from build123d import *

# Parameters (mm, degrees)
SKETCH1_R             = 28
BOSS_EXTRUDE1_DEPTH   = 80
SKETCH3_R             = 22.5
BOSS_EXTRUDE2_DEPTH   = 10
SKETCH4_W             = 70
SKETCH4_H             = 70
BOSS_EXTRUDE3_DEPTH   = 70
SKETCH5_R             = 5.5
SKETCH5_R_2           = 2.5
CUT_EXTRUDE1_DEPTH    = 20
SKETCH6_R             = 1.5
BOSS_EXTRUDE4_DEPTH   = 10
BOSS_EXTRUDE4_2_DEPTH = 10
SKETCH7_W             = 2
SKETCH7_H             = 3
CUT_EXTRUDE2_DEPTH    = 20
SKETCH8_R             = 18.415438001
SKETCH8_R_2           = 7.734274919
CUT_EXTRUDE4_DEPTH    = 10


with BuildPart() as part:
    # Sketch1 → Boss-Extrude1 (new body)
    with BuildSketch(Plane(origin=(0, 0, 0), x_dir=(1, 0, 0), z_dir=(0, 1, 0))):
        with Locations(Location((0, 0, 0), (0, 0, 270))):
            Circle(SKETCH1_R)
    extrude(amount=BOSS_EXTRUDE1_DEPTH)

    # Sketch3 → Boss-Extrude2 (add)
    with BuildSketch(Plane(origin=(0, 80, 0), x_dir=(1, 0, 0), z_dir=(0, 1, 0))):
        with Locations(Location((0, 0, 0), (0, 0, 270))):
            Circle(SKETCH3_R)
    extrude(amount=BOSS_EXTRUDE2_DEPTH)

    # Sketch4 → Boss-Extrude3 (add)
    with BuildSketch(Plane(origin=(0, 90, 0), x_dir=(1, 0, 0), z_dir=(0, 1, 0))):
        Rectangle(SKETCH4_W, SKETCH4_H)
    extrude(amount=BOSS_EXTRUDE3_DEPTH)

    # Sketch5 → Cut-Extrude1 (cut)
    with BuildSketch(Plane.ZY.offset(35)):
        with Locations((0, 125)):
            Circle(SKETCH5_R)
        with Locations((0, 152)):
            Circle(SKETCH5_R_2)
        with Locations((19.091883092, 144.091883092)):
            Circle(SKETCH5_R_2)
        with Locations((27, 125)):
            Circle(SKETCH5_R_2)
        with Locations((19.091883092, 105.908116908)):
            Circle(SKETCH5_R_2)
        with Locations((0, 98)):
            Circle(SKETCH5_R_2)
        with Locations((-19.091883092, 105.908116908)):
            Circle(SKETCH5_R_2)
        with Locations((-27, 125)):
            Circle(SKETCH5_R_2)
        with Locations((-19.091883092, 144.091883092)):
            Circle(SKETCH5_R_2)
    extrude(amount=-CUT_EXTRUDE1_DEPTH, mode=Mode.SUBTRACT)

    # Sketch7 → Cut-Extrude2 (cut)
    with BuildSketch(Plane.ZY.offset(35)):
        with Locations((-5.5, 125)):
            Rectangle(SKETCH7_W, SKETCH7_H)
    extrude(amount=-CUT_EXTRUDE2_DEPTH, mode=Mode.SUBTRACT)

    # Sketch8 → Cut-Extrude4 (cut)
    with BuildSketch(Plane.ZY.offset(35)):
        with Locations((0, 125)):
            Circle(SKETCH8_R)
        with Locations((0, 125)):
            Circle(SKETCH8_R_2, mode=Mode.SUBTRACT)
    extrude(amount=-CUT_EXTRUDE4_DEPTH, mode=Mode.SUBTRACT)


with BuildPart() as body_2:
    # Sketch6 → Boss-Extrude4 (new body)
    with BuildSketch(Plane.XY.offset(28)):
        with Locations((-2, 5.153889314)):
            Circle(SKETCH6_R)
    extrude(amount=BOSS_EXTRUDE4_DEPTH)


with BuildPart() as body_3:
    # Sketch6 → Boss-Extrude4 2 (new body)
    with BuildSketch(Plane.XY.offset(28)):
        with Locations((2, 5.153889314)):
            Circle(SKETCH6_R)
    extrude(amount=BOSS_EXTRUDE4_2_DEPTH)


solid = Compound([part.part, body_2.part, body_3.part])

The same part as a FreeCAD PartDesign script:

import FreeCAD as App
import Part
import Sketcher
from FreeCAD import Vector

doc = App.newDocument("Part")
body = doc.addObject("PartDesign::Body", "Body")

sketch1 = body.newObject("Sketcher::SketchObject", "Sketch")
sketch1.AttachmentSupport = (doc.getObject("XZ_Plane"), [""])
sketch1.MapMode = "FlatFace"
sketch1.addGeometry(Part.Circle(Vector(0, 0, 0), Vector(0, 0, 1), 28), False)
sketch1.addConstraint(Sketcher.Constraint("Coincident", 0, 3, -1, 1))
sketch1.addConstraint(Sketcher.Constraint("Diameter", 0, 56.0))
pad1 = body.newObject("PartDesign::Pad", "Pad")
pad1.Profile = sketch1
pad1.Length = 80
pad1.Reversed = True

sketch2 = body.newObject("Sketcher::SketchObject", "Sketch001")
sketch2.AttachmentSupport = (doc.getObject("XZ_Plane"), [""])
sketch2.MapMode = "FlatFace"
sketch2.AttachmentOffset = App.Placement(Vector(0, 0, -80), App.Rotation())
sketch2.addGeometry(Part.Circle(Vector(0, 0, 0), Vector(0, 0, 1), 22), False)
sketch2.addConstraint(Sketcher.Constraint("Coincident", 0, 3, -1, 1))
sketch2.addConstraint(Sketcher.Constraint("Diameter", 0, 45.0))
pad2 = body.newObject("PartDesign::Pad", "Pad001")
pad2.Profile = sketch2
pad2.Length = 10
pad2.Reversed = True

sketch3 = body.newObject("Sketcher::SketchObject", "Sketch002")
sketch3.AttachmentSupport = (doc.getObject("XZ_Plane"), [""])
sketch3.MapMode = "FlatFace"
sketch3.AttachmentOffset = App.Placement(Vector(0, 0, -90), App.Rotation())
sketch3.addGeometry(Part.LineSegment(Vector(-35, -35, 0), Vector(-35, 35, 0)), False)
sketch3.addGeometry(Part.LineSegment(Vector(-35, 35, 0), Vector(35, 35, 0)), False)
sketch3.addGeometry(Part.LineSegment(Vector(35, 35, 0), Vector(35, -35, 0)), False)
sketch3.addGeometry(Part.LineSegment(Vector(35, -35, 0), Vector(-35, -35, 0)), False)
sketch3.addConstraint(Sketcher.Constraint("Coincident", 0, 2, 1, 1))
sketch3.addConstraint(Sketcher.Constraint("Coincident", 1, 2, 2, 1))
sketch3.addConstraint(Sketcher.Constraint("Coincident", 2, 2, 3, 1))
sketch3.addConstraint(Sketcher.Constraint("Coincident", 3, 2, 0, 1))
sketch3.addConstraint(Sketcher.Constraint("Vertical", 0))
sketch3.addConstraint(Sketcher.Constraint("Horizontal", 1))
sketch3.addConstraint(Sketcher.Constraint("Vertical", 2))
sketch3.addConstraint(Sketcher.Constraint("Horizontal", 3))
sketch3.addConstraint(Sketcher.Constraint("Symmetric", 0, 2, 2, 2, -1, 1))
sketch3.addConstraint(Sketcher.Constraint("Equal", 3, 0))
sketch3.addConstraint(Sketcher.Constraint("DistanceX", 1, 1, 1, 2, 70.0))
pad3 = body.newObject("PartDesign::Pad", "Pad002")
pad3.Profile = sketch3
pad3.Length = 70
pad3.Reversed = True

sketch4 = body.newObject("Sketcher::SketchObject", "Sketch003")
sketch4.AttachmentSupport = (doc.getObject("YZ_Plane"), [""])
sketch4.MapMode = "FlatFace"
sketch4.AttachmentOffset = App.Placement(Vector(0, 0, -35), App.Rotation())
sketch4.addGeometry(Part.Circle(Vector(125, 0, 0), Vector(0, 0, 1), 5.5), False)
sketch4.addGeometry(Part.Circle(Vector(152, 0, 0), Vector(0, 0, 1), 2.5), False)
sketch4.addGeometry(Part.Circle(Vector(144.1, 19.1, 0), Vector(0, 0, 1), 2.5), False)
sketch4.addGeometry(Part.Circle(Vector(125, 27, 0), Vector(0, 0, 1), 2.5), False)
sketch4.addGeometry(Part.Circle(Vector(105.9, 19.1, 0), Vector(0, 0, 1), 2.5), False)
sketch4.addGeometry(Part.Circle(Vector(98, 0, 0), Vector(0, 0, 1), 2.5), False)
sketch4.addGeometry(Part.Circle(Vector(105.9, -19.1, 0), Vector(0, 0, 1), 2.5), False)
sketch4.addGeometry(Part.Circle(Vector(125, -27, 0), Vector(0, 0, 1), 2.5), False)
sketch4.addGeometry(Part.Circle(Vector(144.1, -19.1, 0), Vector(0, 0, 1), 2.5), False)
sketch4.addConstraint(Sketcher.Constraint("Equal", 1, 2))
sketch4.addConstraint(Sketcher.Constraint("Equal", 2, 3))
sketch4.addConstraint(Sketcher.Constraint("Equal", 3, 4))
sketch4.addConstraint(Sketcher.Constraint("Equal", 4, 5))
sketch4.addConstraint(Sketcher.Constraint("Equal", 5, 6))
sketch4.addConstraint(Sketcher.Constraint("Equal", 6, 7))
sketch4.addConstraint(Sketcher.Constraint("Equal", 7, 8))
sketch4.addConstraint(Sketcher.Constraint("Symmetric", 4, 3, 6, 3, -1))
sketch4.addConstraint(Sketcher.Constraint("Symmetric", 3, 3, 7, 3, -1))
sketch4.addConstraint(Sketcher.Constraint("Symmetric", 2, 3, 8, 3, -1))
sketch4.addConstraint(Sketcher.Constraint("PointOnObject", 0, 3, -1))
sketch4.addConstraint(Sketcher.Constraint("PointOnObject", 1, 3, -1))
sketch4.addConstraint(Sketcher.Constraint("PointOnObject", 5, 3, -1))
sketch4.addConstraint(Sketcher.Constraint("Horizontal", 2, 3, 4, 3))
sketch4.addConstraint(Sketcher.Constraint("Vertical", 0, 3, 3, 3))
sketch4.addConstraint(Sketcher.Constraint("Diameter", 0, 11.0))
sketch4.addConstraint(Sketcher.Constraint("Diameter", 1, 5.0))
sketch4.addConstraint(Sketcher.Constraint("DistanceX", -1, 1, 0, 3, 125.0))
sketch4.addConstraint(Sketcher.Constraint("DistanceX", -1, 1, 1, 3, 152.0))
sketch4.addConstraint(Sketcher.Constraint("DistanceY", -1, 1, 3, 3, 27.0))
sketch4.addConstraint(Sketcher.Constraint("DistanceX", -1, 1, 5, 3, 98.0))
sketch4.addConstraint(Sketcher.Constraint("DistanceX", -1, 1, 2, 3, 144.091883))
sketch4.addConstraint(Sketcher.Constraint("DistanceY", -1, 1, 2, 3, 19.091883))
sketch4.addConstraint(Sketcher.Constraint("DistanceX", -1, 1, 4, 3, 105.908117))
pocket1 = body.newObject("PartDesign::Pocket", "Pocket")
pocket1.Profile = sketch4
pocket1.Length = 20
pocket1.Reversed = True

sketch5 = body.newObject("Sketcher::SketchObject", "Sketch004")
sketch5.AttachmentSupport = (doc.getObject("YZ_Plane"), [""])
sketch5.MapMode = "FlatFace"
sketch5.AttachmentOffset = App.Placement(Vector(0, 0, -35), App.Rotation())
sketch5.addGeometry(Part.LineSegment(Vector(126.5, -6.5, 0), Vector(123.5, -6.5, 0)), False)
sketch5.addGeometry(Part.LineSegment(Vector(123.5, -6.5, 0), Vector(123.5, -4.5, 0)), False)
sketch5.addGeometry(Part.LineSegment(Vector(123.5, -4.5, 0), Vector(126.5, -4.5, 0)), False)
sketch5.addGeometry(Part.LineSegment(Vector(126.5, -4.5, 0), Vector(126.5, -6.5, 0)), False)
sketch5.addConstraint(Sketcher.Constraint("Coincident", 0, 2, 1, 1))
sketch5.addConstraint(Sketcher.Constraint("Coincident", 1, 2, 2, 1))
sketch5.addConstraint(Sketcher.Constraint("Coincident", 2, 2, 3, 1))
sketch5.addConstraint(Sketcher.Constraint("Coincident", 3, 2, 0, 1))
sketch5.addConstraint(Sketcher.Constraint("Horizontal", 0))
sketch5.addConstraint(Sketcher.Constraint("Vertical", 1))
sketch5.addConstraint(Sketcher.Constraint("Horizontal", 2))
sketch5.addConstraint(Sketcher.Constraint("Vertical", 3))
sketch5.addConstraint(Sketcher.Constraint("DistanceX", 0, 2, 0, 1, 3.0))
sketch5.addConstraint(Sketcher.Constraint("DistanceY", 1, 1, 1, 2, 2.0))
sketch5.addConstraint(Sketcher.Constraint("DistanceX", -1, 1, 0, 2, 123.5))
sketch5.addConstraint(Sketcher.Constraint("DistanceY", 0, 2, -1, 1, 6.5))
pocket2 = body.newObject("PartDesign::Pocket", "Pocket001")
pocket2.Profile = sketch5
pocket2.Length = 20
pocket2.Reversed = True

sketch6 = body.newObject("Sketcher::SketchObject", "Sketch005")
sketch6.AttachmentSupport = (doc.getObject("YZ_Plane"), [""])
sketch6.MapMode = "FlatFace"
sketch6.AttachmentOffset = App.Placement(Vector(0, 0, -35), App.Rotation())
sketch6.addGeometry(Part.Circle(Vector(125, 0, 0), Vector(0, 0, 1), 18), False)
sketch6.addGeometry(Part.Circle(Vector(125, 0, 0), Vector(0, 0, 1), 8), False)
sketch6.addConstraint(Sketcher.Constraint("Coincident", 1, 3, 0, 3))
sketch6.addConstraint(Sketcher.Constraint("PointOnObject", 0, 3, -1))
sketch6.addConstraint(Sketcher.Constraint("DistanceX", -1, 1, 0, 3, 125.0))
sketch6.addConstraint(Sketcher.Constraint("Diameter", 1, 15.46855))
sketch6.addConstraint(Sketcher.Constraint("Diameter", 0, 36.830876))
pocket3 = body.newObject("PartDesign::Pocket", "Pocket002")
pocket3.Profile = sketch6
pocket3.Length = 10
pocket3.Reversed = True
body2 = doc.addObject("PartDesign::Body", "Body001")

sketch7 = body2.newObject("Sketcher::SketchObject", "Sketch006")
sketch7.AttachmentSupport = (doc.getObject("XY_Plane001"), [""])
sketch7.MapMode = "FlatFace"
sketch7.AttachmentOffset = App.Placement(Vector(0, 0, 28), App.Rotation())
sketch7.addGeometry(Part.Circle(Vector(-2, 5.2, 0), Vector(0, 0, 1), 1.5), False)
sketch7.addConstraint(Sketcher.Constraint("Diameter", 0, 3.0))
sketch7.addConstraint(Sketcher.Constraint("DistanceX", 0, 3, -1, 1, 2.0))
sketch7.addConstraint(Sketcher.Constraint("DistanceY", -1, 1, 0, 3, 5.153889))
pad4 = body2.newObject("PartDesign::Pad", "Pad003")
pad4.Profile = sketch7
pad4.Length = 10
body3 = doc.addObject("PartDesign::Body", "Body002")

sketch8 = body3.newObject("Sketcher::SketchObject", "Sketch007")
sketch8.AttachmentSupport = (doc.getObject("XY_Plane002"), [""])
sketch8.MapMode = "FlatFace"
sketch8.AttachmentOffset = App.Placement(Vector(0, 0, 28), App.Rotation())
sketch8.addGeometry(Part.Circle(Vector(2, 5.2, 0), Vector(0, 0, 1), 1.5), False)
sketch8.addConstraint(Sketcher.Constraint("Diameter", 0, 3.0))
sketch8.addConstraint(Sketcher.Constraint("DistanceX", -1, 1, 0, 3, 2.0))
sketch8.addConstraint(Sketcher.Constraint("DistanceY", -1, 1, 0, 3, 5.153889))
pad5 = body3.newObject("PartDesign::Pad", "Pad004")
pad5.Profile = sketch8
pad5.Length = 10

doc.recompute()
